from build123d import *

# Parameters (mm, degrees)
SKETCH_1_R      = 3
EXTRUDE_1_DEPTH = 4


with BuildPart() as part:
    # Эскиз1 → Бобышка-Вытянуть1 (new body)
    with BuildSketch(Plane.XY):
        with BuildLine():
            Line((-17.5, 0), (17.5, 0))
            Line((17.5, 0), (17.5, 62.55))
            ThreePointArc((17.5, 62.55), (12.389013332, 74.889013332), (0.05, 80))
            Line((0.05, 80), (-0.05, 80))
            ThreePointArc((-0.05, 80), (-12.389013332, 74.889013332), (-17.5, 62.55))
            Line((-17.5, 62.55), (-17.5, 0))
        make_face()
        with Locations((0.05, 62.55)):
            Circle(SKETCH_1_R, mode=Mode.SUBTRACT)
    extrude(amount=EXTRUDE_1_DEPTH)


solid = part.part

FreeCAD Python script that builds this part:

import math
import FreeCAD as App
import Part
import Sketcher

V = App.Vector
Q = App.Units.Quantity

doc = App.newDocument("Part")
body = doc.addObject("PartDesign::Body", "Body")

sketch1 = body.newObject("Sketcher::SketchObject", "Sketch")
sketch1.AttachmentSupport = (doc.getObject("XY_Plane"), [""])
sketch1.MapMode = "FlatFace"
sketch1.addGeometry(Part.LineSegment(V(-17.5, 0, 0), V(17.5, 0, 0)), False)
sketch1.addGeometry(Part.LineSegment(V(17.5, 0, 0), V(17.5, 62.55, 0)), False)
sketch1.addGeometry(Part.ArcOfCircle(Part.Circle(V(0.05, 62.55, 0), V(0, 0, 1), 17.45), math.radians(0), math.radians(90)), False)
sketch1.addGeometry(Part.LineSegment(V(0.05, 80, 0), V(-0.05, 80, 0)), False)
sketch1.addGeometry(Part.ArcOfCircle(Part.Circle(V(-0.05, 62.55, 0), V(0, 0, 1), 17.45), math.radians(90), math.radians(180)), False)
sketch1.addGeometry(Part.LineSegment(V(-17.5, 62.55, 0), V(-17.5, 0, 0)), False)
sketch1.addGeometry(Part.Circle(V(0.05, 62.55, 0), V(0, 0, 1), 3), False)
sketch1.addConstraint(Sketcher.Constraint("Coincident", 0, 2, 1, 1))
sketch1.addConstraint(Sketcher.Constraint("Tangent", 1, 2, 2, 1))
sketch1.addConstraint(Sketcher.Constraint("Tangent", 2, 2, 3, 1))
sketch1.addConstraint(Sketcher.Constraint("Tangent", 3, 2, 4, 1))
sketch1.addConstraint(Sketcher.Constraint("Tangent", 4, 2, 5, 1))
sketch1.addConstraint(Sketcher.Constraint("Coincident", 5, 2, 0, 1))
sketch1.addConstraint(Sketcher.Constraint("Horizontal", 0))
sketch1.addConstraint(Sketcher.Constraint("Vertical", 1))
sketch1.addConstraint(Sketcher.Constraint("Horizontal", 3))
sketch1.addConstraint(Sketcher.Constraint("Vertical", 5))
sketch1.addConstraint(Sketcher.Constraint("Coincident", 6, 3, 2, 3))
sketch1.addConstraint(Sketcher.Constraint("Equal", 2, 4))
sketch1.addConstraint(Sketcher.Constraint("Symmetric", 0, 2, 5, 2, -1, 1))
sketch1.addConstraint(Sketcher.Constraint("Diameter", 6, Q("6 mm")))
sketch1.addConstraint(Sketcher.Constraint("DistanceX", 0, 1, 0, 2, Q("35 mm")))
sketch1.addConstraint(Sketcher.Constraint("Radius", 2, Q("17.45 mm")))
sketch1.addConstraint(Sketcher.Constraint("DistanceY", -1, 1, 2, 2, Q("80 mm")))
pad1 = body.newObject("PartDesign::Pad", "Pad")
pad1.Profile = sketch1
pad1.Length = 4

doc.recompute()
